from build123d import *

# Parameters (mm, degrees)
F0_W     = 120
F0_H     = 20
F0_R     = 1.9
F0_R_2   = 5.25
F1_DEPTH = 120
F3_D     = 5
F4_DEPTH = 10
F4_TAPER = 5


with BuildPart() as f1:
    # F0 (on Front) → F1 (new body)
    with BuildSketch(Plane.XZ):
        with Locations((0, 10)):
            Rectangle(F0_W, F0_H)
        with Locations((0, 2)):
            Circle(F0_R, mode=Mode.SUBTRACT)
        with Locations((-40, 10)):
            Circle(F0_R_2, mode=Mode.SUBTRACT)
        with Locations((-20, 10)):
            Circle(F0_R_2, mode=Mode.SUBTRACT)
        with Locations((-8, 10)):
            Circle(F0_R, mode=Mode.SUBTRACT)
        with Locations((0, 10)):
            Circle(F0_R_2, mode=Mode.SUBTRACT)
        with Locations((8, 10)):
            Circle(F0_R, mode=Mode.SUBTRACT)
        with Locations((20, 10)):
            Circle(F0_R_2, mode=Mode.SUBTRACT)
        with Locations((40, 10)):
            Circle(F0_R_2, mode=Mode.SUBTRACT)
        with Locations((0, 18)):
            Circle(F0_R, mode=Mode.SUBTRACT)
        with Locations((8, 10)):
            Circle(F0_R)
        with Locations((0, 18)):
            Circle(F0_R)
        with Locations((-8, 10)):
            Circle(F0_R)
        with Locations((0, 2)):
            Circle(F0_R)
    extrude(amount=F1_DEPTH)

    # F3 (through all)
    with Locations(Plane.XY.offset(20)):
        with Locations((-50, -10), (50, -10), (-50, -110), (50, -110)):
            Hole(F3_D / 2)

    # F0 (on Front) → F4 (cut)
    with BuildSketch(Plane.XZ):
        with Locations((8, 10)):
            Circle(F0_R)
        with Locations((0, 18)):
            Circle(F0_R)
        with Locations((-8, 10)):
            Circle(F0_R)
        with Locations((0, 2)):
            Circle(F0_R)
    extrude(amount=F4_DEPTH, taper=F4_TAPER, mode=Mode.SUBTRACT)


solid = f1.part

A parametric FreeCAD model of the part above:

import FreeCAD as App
import Part
import Sketcher
from FreeCAD import Vector

doc = App.newDocument("Part")
body = doc.addObject("PartDesign::Body", "Body")

# Sketch on XZ plane
sketch1 = body.newObject("Sketcher::SketchObject", "Sketch")
sketch1.AttachmentSupport = (doc.getObject("XZ_Plane"), [""])
sketch1.MapMode = "FlatFace"
sketch1.addGeometry([
    Part.LineSegment(Vector(-60, 20, 0), Vector(-60, 0, 0)),  # 0
    Part.LineSegment(Vector(-60, 0, 0), Vector(60, 0, 0)),  # 1
    Part.LineSegment(Vector(60, 0, 0), Vector(60, 20, 0)),  # 2
    Part.LineSegment(Vector(60, 20, 0), Vector(-60, 20, 0)),  # 3
    Part.Circle(Vector(-40, 10, 0), Vector(0, 0, 1), 5),  # 4
    Part.Circle(Vector(-20, 10, 0), Vector(0, 0, 1), 5),  # 5
    Part.Circle(Vector(0, 10, 0), Vector(0, 0, 1), 5),  # 6
    Part.Circle(Vector(20, 10, 0), Vector(0, 0, 1), 5),  # 7
    Part.Circle(Vector(40, 10, 0), Vector(0, 0, 1), 5),  # 8
], False)
sketch1.addConstraint([
    Sketcher.Constraint("Coincident", 0, 2, 1, 1),
    Sketcher.Constraint("Coincident", 1, 2, 2, 1),
    Sketcher.Constraint("Coincident", 2, 2, 3, 1),
    Sketcher.Constraint("Coincident", 3, 2, 0, 1),
    Sketcher.Constraint("Vertical", 0),
    Sketcher.Constraint("Horizontal", 1),
    Sketcher.Constraint("Vertical", 2),
    Sketcher.Constraint("Horizontal", 3),
    Sketcher.Constraint("Equal", 4, 5),
    Sketcher.Constraint("Equal", 5, 6),
    Sketcher.Constraint("Equal", 6, 7),
    Sketcher.Constraint("Equal", 7, 8),
    Sketcher.Constraint("Symmetric", 0, 2, 1, 2, -1, 1),
    Sketcher.Constraint("Symmetric", 5, 3, 7, 3, -2),
    Sketcher.Constraint("Symmetric", 4, 3, 8, 3, -2),
    Sketcher.Constraint("PointOnObject", 6, 3, -2),
    Sketcher.Constraint("Horizontal", 4, 3, 5, 3),
    Sketcher.Constraint("Horizontal", 5, 3, 6, 3),
    Sketcher.Constraint("Diameter", 4, 10.5),
    Sketcher.Constraint("DistanceX", 1, 1, 1, 2, 120.0),
    Sketcher.Constraint("DistanceY", 0, 2, 0, 1, 20.0),
    Sketcher.Constraint("DistanceX", 4, 3, -1, 1, 40.0),
    Sketcher.Constraint("DistanceY", -1, 1, 4, 3, 10.0),
    Sketcher.Constraint("DistanceX", 5, 3, -1, 1, 20.0),
])
pad1 = body.newObject("PartDesign::Pad", "Pad")
pad1.Profile = sketch1
pad1.Length = 120

# Sketch on XY plane
sketch2 = body.newObject("Sketcher::SketchObject", "Sketch001")
sketch2.AttachmentSupport = (doc.getObject("XY_Plane"), [""])
sketch2.MapMode = "FlatFace"
sketch2.AttachmentOffset = App.Placement(Vector(0, 0, 20), App.Rotation())
sketch2.addGeometry([
    Part.Circle(Vector(-50, -10, 0), Vector(0, 0, 1), 2.5),
    Part.Circle(Vector(50, -10, 0), Vector(0, 0, 1), 2.5),
    Part.Circle(Vector(-50, -110, 0), Vector(0, 0, 1), 2.5),
    Part.Circle(Vector(50, -110, 0), Vector(0, 0, 1), 2.5),
], False)
sketch2.addConstraint([
    Sketcher.Constraint("Equal", 0, 1),
    Sketcher.Constraint("Equal", 1, 2),
    Sketcher.Constraint("Equal", 2, 3),
    Sketcher.Constraint("Symmetric", 0, 3, 1, 3, -2),
    Sketcher.Constraint("Symmetric", 2, 3, 3, 3, -2),
    Sketcher.Constraint("Vertical", 0, 3, 2, 3),
    Sketcher.Constraint("Diameter", 0, 5.0),
    Sketcher.Constraint("DistanceX", 0, 3, -1, 1, 50.0),
    Sketcher.Constraint("DistanceY", 0, 3, -1, 1, 10.0),
    Sketcher.Constraint("DistanceY", 2, 3, -1, 1, 110.0),
])
doc.recompute()
hole = body.newObject("PartDesign::Hole", "Hole")
hole.Profile = sketch2
hole.ThreadType = "None"
hole.Diameter = 5
hole.DepthType = "ThroughAll"

# Sketch on XZ plane
sketch3 = body.newObject("Sketcher::SketchObject", "Sketch002")
sketch3.AttachmentSupport = (doc.getObject("XZ_Plane"), [""])
sketch3.MapMode = "FlatFace"
sketch3.addGeometry([
    Part.Circle(Vector(8, 10, 0), Vector(0, 0, 1), 1.9),
    Part.Circle(Vector(0, 18, 0), Vector(0, 0, 1), 1.9),
    Part.Circle(Vector(-8, 10, 0), Vector(0, 0, 1), 1.9),
    Part.Circle(Vector(0, 2, 0), Vector(0, 0, 1), 1.9),
], False)
sketch3.addConstraint([
    Sketcher.Constraint("Equal", 0, 1),
    Sketcher.Constraint("Equal", 1, 2),
    Sketcher.Constraint("Equal", 2, 3),
    Sketcher.Constraint("Symmetric", 0, 3, 2, 3, -2),
    Sketcher.Constraint("PointOnObject", 1, 3, -2),
    Sketcher.Constraint("PointOnObject", 3, 3, -2),
    Sketcher.Constraint("Diameter", 0, 3.8),
    Sketcher.Constraint("DistanceX", -1, 1, 0, 3, 8.0),
    Sketcher.Constraint("DistanceY", -1, 1, 0, 3, 10.0),
    Sketcher.Constraint("DistanceY", -1, 1, 1, 3, 18.0),
    Sketcher.Constraint("DistanceY", -1, 1, 3, 3, 2.0),
])
pocket1 = body.newObject("PartDesign::Pocket", "Pocket")
pocket1.Profile = sketch3
pocket1.Length = 10
pocket1.Reversed = True
pocket1.TaperAngle = -5

doc.recompute()
